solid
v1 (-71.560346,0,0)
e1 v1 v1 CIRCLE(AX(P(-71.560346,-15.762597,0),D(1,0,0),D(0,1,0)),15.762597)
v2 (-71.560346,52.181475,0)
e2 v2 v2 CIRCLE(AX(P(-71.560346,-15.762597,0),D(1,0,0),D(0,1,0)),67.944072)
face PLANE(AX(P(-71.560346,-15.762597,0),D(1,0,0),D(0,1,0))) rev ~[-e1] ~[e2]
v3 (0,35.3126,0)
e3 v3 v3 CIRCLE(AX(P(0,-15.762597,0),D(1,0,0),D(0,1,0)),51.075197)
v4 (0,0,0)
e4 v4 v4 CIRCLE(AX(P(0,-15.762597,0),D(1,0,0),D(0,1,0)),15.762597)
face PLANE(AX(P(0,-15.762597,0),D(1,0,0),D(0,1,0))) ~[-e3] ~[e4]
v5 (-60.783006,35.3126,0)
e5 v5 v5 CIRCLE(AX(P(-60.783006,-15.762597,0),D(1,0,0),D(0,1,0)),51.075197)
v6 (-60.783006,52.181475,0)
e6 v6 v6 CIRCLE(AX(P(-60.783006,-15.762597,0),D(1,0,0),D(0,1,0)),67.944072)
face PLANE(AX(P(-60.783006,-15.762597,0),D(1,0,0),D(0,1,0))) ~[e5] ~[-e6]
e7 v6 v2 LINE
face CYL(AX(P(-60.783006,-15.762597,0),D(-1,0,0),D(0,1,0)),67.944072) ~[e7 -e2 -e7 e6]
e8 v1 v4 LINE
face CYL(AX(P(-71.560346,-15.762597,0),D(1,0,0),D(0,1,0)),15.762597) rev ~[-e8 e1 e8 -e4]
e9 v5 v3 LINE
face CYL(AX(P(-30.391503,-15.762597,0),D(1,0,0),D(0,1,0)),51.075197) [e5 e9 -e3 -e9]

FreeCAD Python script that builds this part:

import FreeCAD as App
import Part
import Sketcher
from FreeCAD import Vector


def add_polygon(sketch, points):
    """Adds a closed chain of lines whose ends are joined by coincident constraints."""
    first, n = sketch.GeometryCount, len(points)
    for a, b in zip(points, points[1:] + points[:1]):
        sketch.addGeometry(Part.LineSegment(App.Vector(*a, 0), App.Vector(*b, 0)), False)
    for i in range(n):
        sketch.addConstraint(Sketcher.Constraint("Coincident", first + i, 2, first + (i + 1) % n, 1))

doc = App.newDocument("Part")
body = doc.addObject("PartDesign::Body", "Body")

# Sketch on XY plane
sketch1 = body.newObject("Sketcher::SketchObject", "Sketch")
sketch1.AttachmentSupport = (doc.getObject("XY_Plane"), [""])
sketch1.MapMode = "FlatFace"
add_polygon(sketch1, [(0, 0), (0, 35), (-61, 35), (-61, 52), (-72, 52), (-72, 0)])  # lines 0-5
sketch1.addGeometry(Part.LineSegment(Vector(-72, -16, 0), Vector(0, -16, 0)), True)  # axis
sketch1.addConstraint([
    Sketcher.Constraint("Vertical", 0),
    Sketcher.Constraint("Horizontal", 1),
    Sketcher.Constraint("Vertical", 2),
    Sketcher.Constraint("Horizontal", 3),
    Sketcher.Constraint("Vertical", 4),
    Sketcher.Constraint("Horizontal", 5),
    Sketcher.Constraint("Horizontal", 6),
    Sketcher.Constraint("Coincident", 5, 2, -1, 1),
    Sketcher.Constraint("PointOnObject", 6, 2, -2),
    Sketcher.Constraint("Vertical", 4, 2, 6, 1),
    Sketcher.Constraint("DistanceY", 0, 1, 0, 2, 35.3126),
    Sketcher.Constraint("DistanceX", 3, 2, 3, 1, 10.77734),
    Sketcher.Constraint("DistanceX", 1, 2, 1, 1, 60.783006),
    Sketcher.Constraint("DistanceY", 2, 1, 2, 2, 16.868875),
    Sketcher.Constraint("DistanceY", 6, 1, -1, 1, 15.762597),
])
revolution = body.newObject("PartDesign::Revolution", "Revolution")
revolution.Profile = sketch1
revolution.ReferenceAxis = (sketch1, ["Axis0"])
revolution.Angle = 360

doc.recompute()
